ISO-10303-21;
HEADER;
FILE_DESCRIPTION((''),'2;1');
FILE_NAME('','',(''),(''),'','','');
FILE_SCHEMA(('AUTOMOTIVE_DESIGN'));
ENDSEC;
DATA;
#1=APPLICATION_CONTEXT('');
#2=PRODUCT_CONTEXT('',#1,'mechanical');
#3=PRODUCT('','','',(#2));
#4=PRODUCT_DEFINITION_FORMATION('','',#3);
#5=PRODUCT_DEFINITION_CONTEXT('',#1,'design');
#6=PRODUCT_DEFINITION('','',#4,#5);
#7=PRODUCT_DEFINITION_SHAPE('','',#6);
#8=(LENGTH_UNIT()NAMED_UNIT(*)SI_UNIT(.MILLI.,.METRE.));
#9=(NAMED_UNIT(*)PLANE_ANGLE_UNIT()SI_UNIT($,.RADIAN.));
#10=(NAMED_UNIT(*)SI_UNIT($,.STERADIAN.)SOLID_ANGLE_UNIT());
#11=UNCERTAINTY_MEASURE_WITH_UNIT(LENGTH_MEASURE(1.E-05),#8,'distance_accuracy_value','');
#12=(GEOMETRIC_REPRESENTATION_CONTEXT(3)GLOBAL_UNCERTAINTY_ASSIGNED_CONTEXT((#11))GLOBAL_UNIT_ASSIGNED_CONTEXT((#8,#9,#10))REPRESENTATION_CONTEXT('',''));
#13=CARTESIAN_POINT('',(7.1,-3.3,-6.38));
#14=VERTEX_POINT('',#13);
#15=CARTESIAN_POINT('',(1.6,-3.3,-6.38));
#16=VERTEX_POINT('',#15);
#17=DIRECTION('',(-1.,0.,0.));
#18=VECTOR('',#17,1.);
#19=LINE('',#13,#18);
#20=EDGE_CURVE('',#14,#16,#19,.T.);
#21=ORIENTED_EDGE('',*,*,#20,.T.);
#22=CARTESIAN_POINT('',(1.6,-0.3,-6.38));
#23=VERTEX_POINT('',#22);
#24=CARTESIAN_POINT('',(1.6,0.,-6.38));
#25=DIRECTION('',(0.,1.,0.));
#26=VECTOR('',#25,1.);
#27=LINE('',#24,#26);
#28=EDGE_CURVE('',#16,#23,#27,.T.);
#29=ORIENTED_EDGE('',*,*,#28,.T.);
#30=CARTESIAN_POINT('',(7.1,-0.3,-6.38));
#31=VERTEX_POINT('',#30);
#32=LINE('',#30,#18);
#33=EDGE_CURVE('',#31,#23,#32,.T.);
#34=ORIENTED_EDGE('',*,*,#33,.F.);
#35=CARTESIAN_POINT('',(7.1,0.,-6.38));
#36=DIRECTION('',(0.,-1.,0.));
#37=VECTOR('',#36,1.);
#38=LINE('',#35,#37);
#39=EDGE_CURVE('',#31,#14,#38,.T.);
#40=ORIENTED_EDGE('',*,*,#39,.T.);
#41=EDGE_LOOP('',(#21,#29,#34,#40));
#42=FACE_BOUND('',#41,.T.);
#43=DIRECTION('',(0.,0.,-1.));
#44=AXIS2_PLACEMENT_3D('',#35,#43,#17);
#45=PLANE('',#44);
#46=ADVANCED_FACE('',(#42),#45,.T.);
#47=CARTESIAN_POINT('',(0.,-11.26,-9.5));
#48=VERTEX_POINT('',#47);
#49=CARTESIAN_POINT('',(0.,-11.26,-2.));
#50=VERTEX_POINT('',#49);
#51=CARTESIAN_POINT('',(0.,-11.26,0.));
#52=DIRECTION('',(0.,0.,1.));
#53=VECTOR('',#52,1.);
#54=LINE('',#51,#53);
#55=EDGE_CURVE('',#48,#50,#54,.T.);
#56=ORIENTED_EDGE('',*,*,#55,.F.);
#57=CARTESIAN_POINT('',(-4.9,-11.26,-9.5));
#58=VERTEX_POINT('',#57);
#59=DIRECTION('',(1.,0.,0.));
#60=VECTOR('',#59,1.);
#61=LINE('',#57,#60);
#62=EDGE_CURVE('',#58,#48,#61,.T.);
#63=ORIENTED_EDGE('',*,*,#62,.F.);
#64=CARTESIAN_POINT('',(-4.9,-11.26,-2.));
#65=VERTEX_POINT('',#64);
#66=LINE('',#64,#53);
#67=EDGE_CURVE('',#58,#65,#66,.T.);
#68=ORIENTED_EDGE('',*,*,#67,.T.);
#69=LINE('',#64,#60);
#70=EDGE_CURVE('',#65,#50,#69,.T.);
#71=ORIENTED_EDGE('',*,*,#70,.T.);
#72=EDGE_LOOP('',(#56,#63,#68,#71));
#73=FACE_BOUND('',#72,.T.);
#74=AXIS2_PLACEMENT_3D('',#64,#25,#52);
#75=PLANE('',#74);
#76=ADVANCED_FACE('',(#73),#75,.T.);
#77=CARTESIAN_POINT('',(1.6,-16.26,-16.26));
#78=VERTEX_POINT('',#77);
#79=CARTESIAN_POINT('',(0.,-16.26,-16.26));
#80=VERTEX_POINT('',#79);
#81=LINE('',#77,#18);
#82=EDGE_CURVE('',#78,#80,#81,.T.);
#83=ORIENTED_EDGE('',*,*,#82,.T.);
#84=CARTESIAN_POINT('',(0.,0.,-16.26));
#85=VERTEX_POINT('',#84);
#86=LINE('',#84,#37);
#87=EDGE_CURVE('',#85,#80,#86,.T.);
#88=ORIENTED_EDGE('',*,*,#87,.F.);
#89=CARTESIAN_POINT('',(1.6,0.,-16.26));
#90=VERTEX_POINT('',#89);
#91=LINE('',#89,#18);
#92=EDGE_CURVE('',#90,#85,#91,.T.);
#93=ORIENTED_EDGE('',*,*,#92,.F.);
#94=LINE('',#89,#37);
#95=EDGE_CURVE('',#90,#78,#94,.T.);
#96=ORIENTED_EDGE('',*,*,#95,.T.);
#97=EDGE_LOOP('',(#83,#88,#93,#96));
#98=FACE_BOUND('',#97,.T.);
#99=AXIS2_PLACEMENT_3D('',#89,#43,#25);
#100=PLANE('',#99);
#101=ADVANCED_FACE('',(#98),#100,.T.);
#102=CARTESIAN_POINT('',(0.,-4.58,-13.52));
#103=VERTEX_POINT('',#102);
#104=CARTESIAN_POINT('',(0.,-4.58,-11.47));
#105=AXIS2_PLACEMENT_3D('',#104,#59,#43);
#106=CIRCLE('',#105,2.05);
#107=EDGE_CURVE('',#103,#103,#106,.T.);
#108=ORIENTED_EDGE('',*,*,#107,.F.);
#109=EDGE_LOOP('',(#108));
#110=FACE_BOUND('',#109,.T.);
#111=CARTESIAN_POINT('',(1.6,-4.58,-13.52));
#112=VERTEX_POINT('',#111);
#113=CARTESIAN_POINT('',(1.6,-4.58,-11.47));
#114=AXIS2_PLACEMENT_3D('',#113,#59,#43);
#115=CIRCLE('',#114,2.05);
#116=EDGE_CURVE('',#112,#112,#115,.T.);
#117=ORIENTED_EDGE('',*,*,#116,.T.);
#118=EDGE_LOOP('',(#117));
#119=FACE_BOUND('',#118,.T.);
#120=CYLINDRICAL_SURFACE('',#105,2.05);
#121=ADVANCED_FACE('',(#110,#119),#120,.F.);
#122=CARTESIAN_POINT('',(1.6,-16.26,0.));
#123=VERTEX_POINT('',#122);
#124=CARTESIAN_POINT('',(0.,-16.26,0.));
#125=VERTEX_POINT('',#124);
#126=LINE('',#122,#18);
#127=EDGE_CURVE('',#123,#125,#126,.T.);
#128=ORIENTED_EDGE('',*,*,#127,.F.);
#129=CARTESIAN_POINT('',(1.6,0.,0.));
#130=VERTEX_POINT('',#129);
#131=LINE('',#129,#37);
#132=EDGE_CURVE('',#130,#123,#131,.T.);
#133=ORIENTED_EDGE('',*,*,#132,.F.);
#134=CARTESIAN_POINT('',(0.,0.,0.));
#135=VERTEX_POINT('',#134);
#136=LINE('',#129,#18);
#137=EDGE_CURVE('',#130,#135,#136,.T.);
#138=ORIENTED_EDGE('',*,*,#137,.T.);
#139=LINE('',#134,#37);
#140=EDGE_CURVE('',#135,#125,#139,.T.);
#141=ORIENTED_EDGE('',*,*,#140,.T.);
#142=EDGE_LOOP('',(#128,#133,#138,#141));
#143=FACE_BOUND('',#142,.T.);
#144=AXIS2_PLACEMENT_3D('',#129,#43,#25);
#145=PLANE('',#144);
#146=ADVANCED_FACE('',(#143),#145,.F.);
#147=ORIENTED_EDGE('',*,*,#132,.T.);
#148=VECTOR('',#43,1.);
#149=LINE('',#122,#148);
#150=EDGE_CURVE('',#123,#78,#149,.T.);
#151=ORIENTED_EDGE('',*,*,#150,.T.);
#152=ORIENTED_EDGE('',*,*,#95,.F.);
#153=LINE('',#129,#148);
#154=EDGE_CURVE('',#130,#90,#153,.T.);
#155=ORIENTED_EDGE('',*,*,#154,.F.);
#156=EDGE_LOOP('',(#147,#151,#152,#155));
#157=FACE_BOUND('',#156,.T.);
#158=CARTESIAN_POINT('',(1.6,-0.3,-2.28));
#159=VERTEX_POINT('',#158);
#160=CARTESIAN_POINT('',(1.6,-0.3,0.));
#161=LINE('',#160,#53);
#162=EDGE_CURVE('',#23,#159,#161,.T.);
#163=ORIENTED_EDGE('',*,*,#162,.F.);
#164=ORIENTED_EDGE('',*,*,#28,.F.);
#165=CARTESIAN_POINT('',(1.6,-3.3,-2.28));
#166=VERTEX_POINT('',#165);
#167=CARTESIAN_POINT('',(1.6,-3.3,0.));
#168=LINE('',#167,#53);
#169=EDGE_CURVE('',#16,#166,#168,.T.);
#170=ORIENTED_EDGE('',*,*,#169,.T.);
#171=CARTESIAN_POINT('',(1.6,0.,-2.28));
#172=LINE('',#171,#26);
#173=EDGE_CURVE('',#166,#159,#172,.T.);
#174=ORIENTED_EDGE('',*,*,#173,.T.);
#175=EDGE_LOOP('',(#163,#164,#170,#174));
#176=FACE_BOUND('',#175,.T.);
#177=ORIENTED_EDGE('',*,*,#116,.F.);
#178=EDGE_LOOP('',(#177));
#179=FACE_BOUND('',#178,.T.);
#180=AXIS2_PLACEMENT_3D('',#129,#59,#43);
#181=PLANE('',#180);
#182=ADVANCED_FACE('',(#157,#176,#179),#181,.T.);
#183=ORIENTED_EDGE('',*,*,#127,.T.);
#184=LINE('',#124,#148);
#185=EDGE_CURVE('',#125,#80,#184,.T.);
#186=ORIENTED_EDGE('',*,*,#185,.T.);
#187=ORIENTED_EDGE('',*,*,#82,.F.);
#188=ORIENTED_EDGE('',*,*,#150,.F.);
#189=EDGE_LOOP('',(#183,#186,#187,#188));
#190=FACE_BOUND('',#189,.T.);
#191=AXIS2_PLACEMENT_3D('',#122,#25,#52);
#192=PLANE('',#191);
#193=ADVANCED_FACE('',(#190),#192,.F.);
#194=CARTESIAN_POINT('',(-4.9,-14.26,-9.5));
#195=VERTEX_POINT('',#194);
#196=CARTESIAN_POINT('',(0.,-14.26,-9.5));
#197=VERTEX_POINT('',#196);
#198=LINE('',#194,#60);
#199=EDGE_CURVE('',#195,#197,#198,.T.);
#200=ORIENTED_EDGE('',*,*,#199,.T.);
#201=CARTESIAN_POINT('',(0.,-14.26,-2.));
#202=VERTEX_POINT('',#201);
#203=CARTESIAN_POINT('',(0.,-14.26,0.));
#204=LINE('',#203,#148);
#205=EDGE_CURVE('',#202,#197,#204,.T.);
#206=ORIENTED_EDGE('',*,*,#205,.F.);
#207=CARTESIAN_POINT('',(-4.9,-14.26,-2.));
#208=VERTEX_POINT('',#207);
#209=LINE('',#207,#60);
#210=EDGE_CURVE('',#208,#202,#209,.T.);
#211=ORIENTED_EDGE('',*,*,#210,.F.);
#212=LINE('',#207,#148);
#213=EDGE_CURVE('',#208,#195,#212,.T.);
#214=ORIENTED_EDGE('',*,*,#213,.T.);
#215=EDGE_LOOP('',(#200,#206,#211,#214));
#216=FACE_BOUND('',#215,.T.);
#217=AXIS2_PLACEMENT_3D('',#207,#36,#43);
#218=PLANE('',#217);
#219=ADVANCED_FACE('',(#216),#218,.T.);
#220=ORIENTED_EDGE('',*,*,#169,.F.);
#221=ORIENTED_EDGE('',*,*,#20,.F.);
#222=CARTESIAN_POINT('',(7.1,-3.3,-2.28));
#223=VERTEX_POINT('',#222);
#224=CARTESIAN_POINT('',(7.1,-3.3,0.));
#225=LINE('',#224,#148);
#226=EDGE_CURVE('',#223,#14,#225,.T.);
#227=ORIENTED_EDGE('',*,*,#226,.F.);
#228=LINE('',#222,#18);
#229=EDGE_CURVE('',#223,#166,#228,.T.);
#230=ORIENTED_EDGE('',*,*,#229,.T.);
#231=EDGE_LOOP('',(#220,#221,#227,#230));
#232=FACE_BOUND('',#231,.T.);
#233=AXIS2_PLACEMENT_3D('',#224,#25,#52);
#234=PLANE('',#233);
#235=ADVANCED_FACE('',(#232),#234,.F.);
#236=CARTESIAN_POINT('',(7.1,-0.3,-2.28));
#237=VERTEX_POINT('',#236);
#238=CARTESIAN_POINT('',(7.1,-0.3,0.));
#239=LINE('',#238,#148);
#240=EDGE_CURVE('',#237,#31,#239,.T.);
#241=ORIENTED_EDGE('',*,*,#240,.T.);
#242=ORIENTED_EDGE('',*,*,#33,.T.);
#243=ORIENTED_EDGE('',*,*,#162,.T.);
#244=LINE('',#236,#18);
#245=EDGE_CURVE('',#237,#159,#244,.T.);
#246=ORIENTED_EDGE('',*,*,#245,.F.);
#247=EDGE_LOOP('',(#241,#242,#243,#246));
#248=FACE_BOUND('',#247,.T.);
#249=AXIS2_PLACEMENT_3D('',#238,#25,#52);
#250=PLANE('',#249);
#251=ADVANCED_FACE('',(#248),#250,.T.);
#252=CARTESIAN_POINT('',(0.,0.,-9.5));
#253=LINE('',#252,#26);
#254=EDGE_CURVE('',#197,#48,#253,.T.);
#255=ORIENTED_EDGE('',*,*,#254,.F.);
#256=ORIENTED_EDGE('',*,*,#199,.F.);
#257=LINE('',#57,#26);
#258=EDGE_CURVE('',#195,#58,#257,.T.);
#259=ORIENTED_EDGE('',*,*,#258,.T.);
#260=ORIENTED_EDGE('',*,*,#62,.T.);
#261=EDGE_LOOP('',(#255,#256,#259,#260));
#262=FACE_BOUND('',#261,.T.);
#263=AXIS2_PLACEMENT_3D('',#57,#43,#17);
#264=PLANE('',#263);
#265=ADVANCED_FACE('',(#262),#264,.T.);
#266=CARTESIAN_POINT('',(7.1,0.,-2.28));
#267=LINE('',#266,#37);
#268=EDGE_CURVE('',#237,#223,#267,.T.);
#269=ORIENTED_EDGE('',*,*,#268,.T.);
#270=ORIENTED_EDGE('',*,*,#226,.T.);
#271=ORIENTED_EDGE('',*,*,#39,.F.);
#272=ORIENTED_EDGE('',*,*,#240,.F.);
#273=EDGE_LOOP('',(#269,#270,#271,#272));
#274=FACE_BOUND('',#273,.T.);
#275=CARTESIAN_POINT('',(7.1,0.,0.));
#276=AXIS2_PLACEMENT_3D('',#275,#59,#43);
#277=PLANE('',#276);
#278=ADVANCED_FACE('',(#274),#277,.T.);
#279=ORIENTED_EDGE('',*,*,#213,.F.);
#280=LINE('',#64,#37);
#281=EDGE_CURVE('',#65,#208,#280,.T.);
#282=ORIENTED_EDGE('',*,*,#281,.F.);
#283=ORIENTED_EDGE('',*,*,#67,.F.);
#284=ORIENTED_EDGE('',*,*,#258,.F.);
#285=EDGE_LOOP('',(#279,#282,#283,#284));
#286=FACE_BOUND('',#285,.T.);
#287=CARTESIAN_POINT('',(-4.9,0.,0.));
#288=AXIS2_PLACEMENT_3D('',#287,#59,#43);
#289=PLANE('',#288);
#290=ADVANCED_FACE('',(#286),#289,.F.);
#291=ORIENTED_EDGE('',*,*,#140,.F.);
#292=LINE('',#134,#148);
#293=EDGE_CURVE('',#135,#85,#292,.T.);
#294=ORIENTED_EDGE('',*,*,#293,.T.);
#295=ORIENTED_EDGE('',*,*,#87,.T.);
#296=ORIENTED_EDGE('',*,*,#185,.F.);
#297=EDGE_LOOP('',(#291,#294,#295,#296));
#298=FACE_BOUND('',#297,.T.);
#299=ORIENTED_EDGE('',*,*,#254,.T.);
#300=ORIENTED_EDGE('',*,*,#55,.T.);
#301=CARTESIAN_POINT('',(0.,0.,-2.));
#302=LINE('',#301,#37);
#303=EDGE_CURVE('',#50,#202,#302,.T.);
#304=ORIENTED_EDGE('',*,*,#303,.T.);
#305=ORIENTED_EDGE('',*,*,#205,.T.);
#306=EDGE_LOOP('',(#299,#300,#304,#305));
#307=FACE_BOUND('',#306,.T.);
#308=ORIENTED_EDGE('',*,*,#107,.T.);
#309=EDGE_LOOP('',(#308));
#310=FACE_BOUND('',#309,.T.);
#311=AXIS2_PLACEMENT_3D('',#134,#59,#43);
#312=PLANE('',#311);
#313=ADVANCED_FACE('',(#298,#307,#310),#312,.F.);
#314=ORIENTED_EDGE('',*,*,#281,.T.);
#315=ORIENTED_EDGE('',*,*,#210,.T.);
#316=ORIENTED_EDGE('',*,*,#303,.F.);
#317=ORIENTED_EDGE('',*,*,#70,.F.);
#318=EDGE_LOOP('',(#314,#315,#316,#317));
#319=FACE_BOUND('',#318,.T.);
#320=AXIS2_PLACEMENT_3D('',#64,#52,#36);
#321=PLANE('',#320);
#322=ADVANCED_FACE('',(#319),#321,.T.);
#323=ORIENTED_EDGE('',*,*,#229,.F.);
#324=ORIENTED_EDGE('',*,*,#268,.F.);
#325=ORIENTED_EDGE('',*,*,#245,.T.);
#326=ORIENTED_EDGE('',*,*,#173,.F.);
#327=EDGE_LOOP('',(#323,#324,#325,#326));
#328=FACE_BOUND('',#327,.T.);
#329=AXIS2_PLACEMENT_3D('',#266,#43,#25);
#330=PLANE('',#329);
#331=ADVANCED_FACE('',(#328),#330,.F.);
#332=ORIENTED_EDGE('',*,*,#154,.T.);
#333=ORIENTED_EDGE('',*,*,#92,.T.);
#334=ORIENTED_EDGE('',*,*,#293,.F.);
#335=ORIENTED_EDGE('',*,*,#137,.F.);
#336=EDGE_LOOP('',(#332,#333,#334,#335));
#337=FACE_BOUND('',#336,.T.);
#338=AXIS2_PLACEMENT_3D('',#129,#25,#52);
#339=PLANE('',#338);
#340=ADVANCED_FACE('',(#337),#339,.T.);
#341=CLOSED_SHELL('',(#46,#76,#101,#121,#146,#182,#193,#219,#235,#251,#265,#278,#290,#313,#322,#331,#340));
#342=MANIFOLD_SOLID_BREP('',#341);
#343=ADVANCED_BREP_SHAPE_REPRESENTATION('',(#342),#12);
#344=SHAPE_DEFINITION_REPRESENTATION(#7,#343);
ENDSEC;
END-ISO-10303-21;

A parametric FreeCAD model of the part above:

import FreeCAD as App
import Part
import Sketcher
from FreeCAD import Vector
Q = App.Units.Quantity


def add_polygon(sketch, points):
    """Adds a closed chain of lines whose ends are joined by coincident constraints."""
    first, n = sketch.GeometryCount, len(points)
    for a, b in zip(points, points[1:] + points[:1]):
        sketch.addGeometry(Part.LineSegment(App.Vector(*a, 0), App.Vector(*b, 0)), False)
    for i in range(n):
        sketch.addConstraint(Sketcher.Constraint("Coincident", first + i, 2, first + (i + 1) % n, 1))

doc = App.newDocument("Part")
body = doc.addObject("PartDesign::Body", "Body")

sketch1 = body.newObject("Sketcher::SketchObject", "Sketch")
sketch1.AttachmentSupport = (doc.getObject("YZ_Plane"), [""])
sketch1.MapMode = "FlatFace"
add_polygon(sketch1, [(0, 0), (-16.26, 0), (-16.26, -16.26), (0, -16.26)])
sketch1.addConstraint([
    Sketcher.Constraint("Horizontal", 0),
    Sketcher.Constraint("Vertical", 1),
    Sketcher.Constraint("Horizontal", 2),
    Sketcher.Constraint("Vertical", 3),
    Sketcher.Constraint("Coincident", 3, 2, -1, 1),
    Sketcher.Constraint("Equal", 2, 1),
    Sketcher.Constraint("DistanceX", 0, 2, 0, 1, Q("16.26 mm")),
])
pad1 = body.newObject("PartDesign::Pad", "Pad")
pad1.Profile = sketch1
pad1.Length = 1.6

sketch2 = body.newObject("Sketcher::SketchObject", "Sketch001")
sketch2.AttachmentSupport = (doc.getObject("YZ_Plane"), [""])
sketch2.MapMode = "FlatFace"
add_polygon(sketch2, [(-0.3, -2.28), (-3.3, -2.28), (-3.3, -6.38), (-0.3, -6.38)])
sketch2.addConstraint([
    Sketcher.Constraint("Horizontal", 0),
    Sketcher.Constraint("Vertical", 1),
    Sketcher.Constraint("Horizontal", 2),
    Sketcher.Constraint("Vertical", 3),
    Sketcher.Constraint("DistanceX", 0, 2, 0, 1, Q("3 mm")),
    Sketcher.Constraint("DistanceY", 1, 2, 1, 1, Q("4.1 mm")),
    Sketcher.Constraint("DistanceX", 0, 2, -1, 1, Q("3.3 mm")),
    Sketcher.Constraint("DistanceY", 0, 2, -1, 1, Q("2.28 mm")),
])
pad2 = body.newObject("PartDesign::Pad", "Pad001")
pad2.Profile = sketch2
pad2.Length = 7.1

sketch3 = body.newObject("Sketcher::SketchObject", "Sketch002")
sketch3.AttachmentSupport = (doc.getObject("YZ_Plane"), [""])
sketch3.MapMode = "FlatFace"
sketch3.AttachmentOffset = App.Placement(Vector(0, 0, 1.6), App.Rotation())
sketch3.addGeometry(Part.Circle(Vector(-4.58, -11.47, 0), Vector(0, 0, 1), 2.05), False)
sketch3.addConstraint([
    Sketcher.Constraint("Diameter", 0, Q("4.1 mm")),
    Sketcher.Constraint("DistanceX", 0, 3, -1, 1, Q("4.58 mm")),
    Sketcher.Constraint("DistanceY", 0, 3, -1, 1, Q("11.47 mm")),
])
pocket1 = body.newObject("PartDesign::Pocket", "Pocket")
pocket1.Profile = sketch3
pocket1.Type = "ThroughAll"

sketch4 = body.newObject("Sketcher::SketchObject", "Sketch003")
sketch4.AttachmentSupport = (doc.getObject("YZ_Plane"), [""])
sketch4.MapMode = "FlatFace"
sketch4.AttachmentOffset = App.Placement(Vector(0, 0, 1.6), App.Rotation())
add_polygon(sketch4, [(-11.26, -2), (-14.26, -2), (-14.26, -9.5), (-11.26, -9.5)])
sketch4.addConstraint([
    Sketcher.Constraint("Horizontal", 0),
    Sketcher.Constraint("Vertical", 1),
    Sketcher.Constraint("Horizontal", 2),
    Sketcher.Constraint("Vertical", 3),
    Sketcher.Constraint("DistanceX", 0, 2, 0, 1, Q("3 mm")),
    Sketcher.Constraint("DistanceY", 1, 2, 1, 1, Q("7.5 mm")),
    Sketcher.Constraint("DistanceY", 0, 2, -1, 1, Q("2 mm")),
    Sketcher.Constraint("DistanceX", 0, 2, -1, 1, Q("14.26 mm")),
])
pad3 = body.newObject("PartDesign::Pad", "Pad002")
pad3.Profile = sketch4
pad3.Length = 6.5
pad3.Reversed = True

doc.recompute()
